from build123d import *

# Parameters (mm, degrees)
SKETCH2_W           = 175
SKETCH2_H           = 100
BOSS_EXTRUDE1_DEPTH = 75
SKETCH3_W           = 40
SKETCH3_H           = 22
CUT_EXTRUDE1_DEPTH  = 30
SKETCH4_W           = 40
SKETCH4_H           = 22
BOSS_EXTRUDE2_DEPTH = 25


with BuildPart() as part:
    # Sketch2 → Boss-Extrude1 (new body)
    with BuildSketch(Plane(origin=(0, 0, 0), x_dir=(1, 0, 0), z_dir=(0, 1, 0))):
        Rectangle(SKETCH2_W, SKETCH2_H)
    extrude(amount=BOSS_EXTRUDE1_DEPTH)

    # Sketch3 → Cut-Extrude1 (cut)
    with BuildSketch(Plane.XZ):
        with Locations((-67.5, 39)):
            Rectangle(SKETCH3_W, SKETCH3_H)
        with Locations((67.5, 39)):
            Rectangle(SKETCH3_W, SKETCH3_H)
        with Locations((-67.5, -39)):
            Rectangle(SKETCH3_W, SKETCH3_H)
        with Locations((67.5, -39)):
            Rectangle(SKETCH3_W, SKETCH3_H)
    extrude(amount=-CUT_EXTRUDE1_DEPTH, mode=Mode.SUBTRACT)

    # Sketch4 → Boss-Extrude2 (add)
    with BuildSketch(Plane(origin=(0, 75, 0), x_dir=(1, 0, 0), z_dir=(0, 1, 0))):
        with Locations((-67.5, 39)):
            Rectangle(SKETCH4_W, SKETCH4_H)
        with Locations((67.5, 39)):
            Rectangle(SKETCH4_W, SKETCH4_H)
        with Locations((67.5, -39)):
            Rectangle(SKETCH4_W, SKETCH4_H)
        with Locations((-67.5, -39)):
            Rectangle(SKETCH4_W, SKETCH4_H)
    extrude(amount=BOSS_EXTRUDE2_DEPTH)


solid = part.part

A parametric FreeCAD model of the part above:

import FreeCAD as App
import Part
import Sketcher

V = App.Vector
Q = App.Units.Quantity

doc = App.newDocument("Part")
body = doc.addObject("PartDesign::Body", "Body")

# Sketch on XZ plane
sketch1 = doc.addObject("Sketcher::SketchObject", "Sketch")
body.addObject(sketch1)
sketch1.AttachmentSupport = (doc.XZ_Plane, [""])
sketch1.MapMode = "FlatFace"
sketch1.addGeometry([
    Part.LineSegment(V(-87.5, -50, 0), V(-87.5, 50, 0)),
    Part.LineSegment(V(-87.5, 50, 0), V(87.5, 50, 0)),
    Part.LineSegment(V(87.5, 50, 0), V(87.5, -50, 0)),
    Part.LineSegment(V(87.5, -50, 0), V(-87.5, -50, 0)),
], False)
sketch1.addConstraint([
    Sketcher.Constraint("Coincident", 0, 2, 1, 1),
    Sketcher.Constraint("Coincident", 1, 2, 2, 1),
    Sketcher.Constraint("Coincident", 2, 2, 3, 1),
    Sketcher.Constraint("Coincident", 3, 2, 0, 1),
    Sketcher.Constraint("Vertical", 0),
    Sketcher.Constraint("Horizontal", 1),
    Sketcher.Constraint("Vertical", 2),
    Sketcher.Constraint("Horizontal", 3),
    Sketcher.Constraint("Symmetric", 0, 2, 2, 2, -1, 1),
    Sketcher.Constraint("DistanceX", 1, 1, 1, 2, Q("175 mm")),
    Sketcher.Constraint("DistanceY", 0, 1, 0, 2, Q("100 mm")),
])
pad1 = doc.addObject("PartDesign::Pad", "Pad")
body.addObject(pad1)
pad1.Profile = sketch1
pad1.Length = 75
pad1.Reversed = True

# Sketch on XZ plane
sketch2 = doc.addObject("Sketcher::SketchObject", "Sketch001")
body.addObject(sketch2)
sketch2.AttachmentSupport = (doc.XZ_Plane, [""])
sketch2.MapMode = "FlatFace"
sketch2.addGeometry([
    Part.LineSegment(V(-87.5, 50, 0), V(-87.5, 28, 0)),  # 0
    Part.LineSegment(V(-87.5, 28, 0), V(-47.5, 28, 0)),  # 1
    Part.LineSegment(V(-47.5, 28, 0), V(-47.5, 50, 0)),  # 2
    Part.LineSegment(V(-47.5, 50, 0), V(-87.5, 50, 0)),  # 3
    Part.LineSegment(V(47.5, 50, 0), V(47.5, 28, 0)),  # 4
    Part.LineSegment(V(47.5, 28, 0), V(87.5, 28, 0)),  # 5
    Part.LineSegment(V(87.5, 28, 0), V(87.5, 50, 0)),  # 6
    Part.LineSegment(V(87.5, 50, 0), V(47.5, 50, 0)),  # 7
    Part.LineSegment(V(-87.5, -28, 0), V(-87.5, -50, 0)),  # 8
    Part.LineSegment(V(-87.5, -50, 0), V(-47.5, -50, 0)),  # 9
    Part.LineSegment(V(-47.5, -50, 0), V(-47.5, -28, 0)),  # 10
    Part.LineSegment(V(-47.5, -28, 0), V(-87.5, -28, 0)),  # 11
    Part.LineSegment(V(47.5, -28, 0), V(47.5, -50, 0)),  # 12
    Part.LineSegment(V(47.5, -50, 0), V(87.5, -50, 0)),  # 13
    Part.LineSegment(V(87.5, -50, 0), V(87.5, -28, 0)),  # 14
    Part.LineSegment(V(87.5, -28, 0), V(47.5, -28, 0)),  # 15
], False)
sketch2.addConstraint([
    Sketcher.Constraint("Coincident", 0, 2, 1, 1),
    Sketcher.Constraint("Coincident", 1, 2, 2, 1),
    Sketcher.Constraint("Coincident", 2, 2, 3, 1),
    Sketcher.Constraint("Coincident", 3, 2, 0, 1),
    Sketcher.Constraint("Coincident", 4, 2, 5, 1),
    Sketcher.Constraint("Coincident", 5, 2, 6, 1),
    Sketcher.Constraint("Coincident", 6, 2, 7, 1),
    Sketcher.Constraint("Coincident", 7, 2, 4, 1),
    Sketcher.Constraint("Coincident", 8, 2, 9, 1),
    Sketcher.Constraint("Coincident", 9, 2, 10, 1),
    Sketcher.Constraint("Coincident", 10, 2, 11, 1),
    Sketcher.Constraint("Coincident", 11, 2, 8, 1),
    Sketcher.Constraint("Coincident", 12, 2, 13, 1),
    Sketcher.Constraint("Coincident", 13, 2, 14, 1),
    Sketcher.Constraint("Coincident", 14, 2, 15, 1),
    Sketcher.Constraint("Coincident", 15, 2, 12, 1),
    Sketcher.Constraint("Vertical", 0),
    Sketcher.Constraint("Horizontal", 1),
    Sketcher.Constraint("Vertical", 2),
    Sketcher.Constraint("Horizontal", 3),
    Sketcher.Constraint("Vertical", 4),
    Sketcher.Constraint("Horizontal", 5),
    Sketcher.Constraint("Vertical", 6),
    Sketcher.Constraint("Horizontal", 7),
    Sketcher.Constraint("Vertical", 8),
    Sketcher.Constraint("Horizontal", 9),
    Sketcher.Constraint("Vertical", 10),
    Sketcher.Constraint("Horizontal", 11),
    Sketcher.Constraint("Vertical", 12),
    Sketcher.Constraint("Horizontal", 13),
    Sketcher.Constraint("Vertical", 14),
    Sketcher.Constraint("Horizontal", 15),
    Sketcher.Constraint("Symmetric", 6, 2, 8, 2, -1, 1),
    Sketcher.Constraint("Symmetric", 4, 2, 10, 2, -1, 1),
    Sketcher.Constraint("Symmetric", 2, 2, 12, 2, -1, 1),
    Sketcher.Constraint("Symmetric", 0, 2, 14, 2, -1, 1),
    Sketcher.Constraint("Symmetric", 1, 2, 4, 2, -2),
    Sketcher.Constraint("Symmetric", 3, 2, 6, 2, -2),
    Sketcher.Constraint("DistanceX", 1, 1, 1, 2, Q("40 mm")),
    Sketcher.Constraint("DistanceY", 0, 2, 0, 1, Q("22 mm")),
    Sketcher.Constraint("DistanceY", -1, 1, 0, 2, Q("28 mm")),
    Sketcher.Constraint("DistanceX", 1, 2, 4, 2, Q("95 mm")),
])
pocket1 = doc.addObject("PartDesign::Pocket", "Pocket")
body.addObject(pocket1)
pocket1.Profile = sketch2
pocket1.Length = 30

# Sketch on XZ plane
sketch3 = doc.addObject("Sketcher::SketchObject", "Sketch002")
body.addObject(sketch3)
sketch3.AttachmentSupport = (doc.XZ_Plane, [""])
sketch3.MapMode = "FlatFace"
sketch3.AttachmentOffset = App.Placement(V(0, 0, -75), App.Rotation())
sketch3.addGeometry([
    Part.LineSegment(V(-87.5, -50, 0), V(-87.5, -28, 0)),  # 0
    Part.LineSegment(V(-87.5, -28, 0), V(-47.5, -28, 0)),  # 1
    Part.LineSegment(V(-47.5, -28, 0), V(-47.5, -50, 0)),  # 2
    Part.LineSegment(V(-47.5, -50, 0), V(-87.5, -50, 0)),  # 3
    Part.LineSegment(V(47.5, -50, 0), V(47.5, -28, 0)),  # 4
    Part.LineSegment(V(47.5, -28, 0), V(87.5, -28, 0)),  # 5
    Part.LineSegment(V(87.5, -28, 0), V(87.5, -50, 0)),  # 6
    Part.LineSegment(V(87.5, -50, 0), V(47.5, -50, 0)),  # 7
    Part.LineSegment(V(47.5, 28, 0), V(47.5, 50, 0)),  # 8
    Part.LineSegment(V(47.5, 50, 0), V(87.5, 50, 0)),  # 9
    Part.LineSegment(V(87.5, 50, 0), V(87.5, 28, 0)),  # 10
    Part.LineSegment(V(87.5, 28, 0), V(47.5, 28, 0)),  # 11
    Part.LineSegment(V(-87.5, 28, 0), V(-87.5, 50, 0)),  # 12
    Part.LineSegment(V(-87.5, 50, 0), V(-47.5, 50, 0)),  # 13
    Part.LineSegment(V(-47.5, 50, 0), V(-47.5, 28, 0)),  # 14
    Part.LineSegment(V(-47.5, 28, 0), V(-87.5, 28, 0)),  # 15
], False)
sketch3.addConstraint([
    Sketcher.Constraint("Coincident", 0, 2, 1, 1),
    Sketcher.Constraint("Coincident", 1, 2, 2, 1),
    Sketcher.Constraint("Coincident", 2, 2, 3, 1),
    Sketcher.Constraint("Coincident", 3, 2, 0, 1),
    Sketcher.Constraint("Coincident", 4, 2, 5, 1),
    Sketcher.Constraint("Coincident", 5, 2, 6, 1),
    Sketcher.Constraint("Coincident", 6, 2, 7, 1),
    Sketcher.Constraint("Coincident", 7, 2, 4, 1),
    Sketcher.Constraint("Coincident", 8, 2, 9, 1),
    Sketcher.Constraint("Coincident", 9, 2, 10, 1),
    Sketcher.Constraint("Coincident", 10, 2, 11, 1),
    Sketcher.Constraint("Coincident", 11, 2, 8, 1),
    Sketcher.Constraint("Coincident", 12, 2, 13, 1),
    Sketcher.Constraint("Coincident", 13, 2, 14, 1),
    Sketcher.Constraint("Coincident", 14, 2, 15, 1),
    Sketcher.Constraint("Coincident", 15, 2, 12, 1),
    Sketcher.Constraint("Vertical", 0),
    Sketcher.Constraint("Horizontal", 1),
    Sketcher.Constraint("Vertical", 2),
    Sketcher.Constraint("Horizontal", 3),
    Sketcher.Constraint("Vertical", 4),
    Sketcher.Constraint("Horizontal", 5),
    Sketcher.Constraint("Vertical", 6),
    Sketcher.Constraint("Horizontal", 7),
    Sketcher.Constraint("Vertical", 8),
    Sketcher.Constraint("Horizontal", 9),
    Sketcher.Constraint("Vertical", 10),
    Sketcher.Constraint("Horizontal", 11),
    Sketcher.Constraint("Vertical", 12),
    Sketcher.Constraint("Horizontal", 13),
    Sketcher.Constraint("Vertical", 14),
    Sketcher.Constraint("Horizontal", 15),
    Sketcher.Constraint("Symmetric", 2, 2, 8, 2, -1, 1),
    Sketcher.Constraint("Symmetric", 0, 2, 10, 2, -1, 1),
    Sketcher.Constraint("Symmetric", 6, 2, 12, 2, -1, 1),
    Sketcher.Constraint("Symmetric", 4, 2, 14, 2, -1, 1),
    Sketcher.Constraint("Symmetric", 1, 2, 4, 2, -2),
    Sketcher.Constraint("Symmetric", 3, 2, 6, 2, -2),
    Sketcher.Constraint("DistanceX", 1, 1, 1, 2, Q("40 mm")),
    Sketcher.Constraint("DistanceY", 0, 1, 0, 2, Q("22 mm")),
    Sketcher.Constraint("DistanceY", 0, 2, -1, 1, Q("28 mm")),
    Sketcher.Constraint("DistanceX", 1, 2, 4, 2, Q("95 mm")),
])
pad2 = doc.addObject("PartDesign::Pad", "Pad001")
body.addObject(pad2)
pad2.Profile = sketch3
pad2.Length = 25
pad2.Reversed = True

doc.recompute()
